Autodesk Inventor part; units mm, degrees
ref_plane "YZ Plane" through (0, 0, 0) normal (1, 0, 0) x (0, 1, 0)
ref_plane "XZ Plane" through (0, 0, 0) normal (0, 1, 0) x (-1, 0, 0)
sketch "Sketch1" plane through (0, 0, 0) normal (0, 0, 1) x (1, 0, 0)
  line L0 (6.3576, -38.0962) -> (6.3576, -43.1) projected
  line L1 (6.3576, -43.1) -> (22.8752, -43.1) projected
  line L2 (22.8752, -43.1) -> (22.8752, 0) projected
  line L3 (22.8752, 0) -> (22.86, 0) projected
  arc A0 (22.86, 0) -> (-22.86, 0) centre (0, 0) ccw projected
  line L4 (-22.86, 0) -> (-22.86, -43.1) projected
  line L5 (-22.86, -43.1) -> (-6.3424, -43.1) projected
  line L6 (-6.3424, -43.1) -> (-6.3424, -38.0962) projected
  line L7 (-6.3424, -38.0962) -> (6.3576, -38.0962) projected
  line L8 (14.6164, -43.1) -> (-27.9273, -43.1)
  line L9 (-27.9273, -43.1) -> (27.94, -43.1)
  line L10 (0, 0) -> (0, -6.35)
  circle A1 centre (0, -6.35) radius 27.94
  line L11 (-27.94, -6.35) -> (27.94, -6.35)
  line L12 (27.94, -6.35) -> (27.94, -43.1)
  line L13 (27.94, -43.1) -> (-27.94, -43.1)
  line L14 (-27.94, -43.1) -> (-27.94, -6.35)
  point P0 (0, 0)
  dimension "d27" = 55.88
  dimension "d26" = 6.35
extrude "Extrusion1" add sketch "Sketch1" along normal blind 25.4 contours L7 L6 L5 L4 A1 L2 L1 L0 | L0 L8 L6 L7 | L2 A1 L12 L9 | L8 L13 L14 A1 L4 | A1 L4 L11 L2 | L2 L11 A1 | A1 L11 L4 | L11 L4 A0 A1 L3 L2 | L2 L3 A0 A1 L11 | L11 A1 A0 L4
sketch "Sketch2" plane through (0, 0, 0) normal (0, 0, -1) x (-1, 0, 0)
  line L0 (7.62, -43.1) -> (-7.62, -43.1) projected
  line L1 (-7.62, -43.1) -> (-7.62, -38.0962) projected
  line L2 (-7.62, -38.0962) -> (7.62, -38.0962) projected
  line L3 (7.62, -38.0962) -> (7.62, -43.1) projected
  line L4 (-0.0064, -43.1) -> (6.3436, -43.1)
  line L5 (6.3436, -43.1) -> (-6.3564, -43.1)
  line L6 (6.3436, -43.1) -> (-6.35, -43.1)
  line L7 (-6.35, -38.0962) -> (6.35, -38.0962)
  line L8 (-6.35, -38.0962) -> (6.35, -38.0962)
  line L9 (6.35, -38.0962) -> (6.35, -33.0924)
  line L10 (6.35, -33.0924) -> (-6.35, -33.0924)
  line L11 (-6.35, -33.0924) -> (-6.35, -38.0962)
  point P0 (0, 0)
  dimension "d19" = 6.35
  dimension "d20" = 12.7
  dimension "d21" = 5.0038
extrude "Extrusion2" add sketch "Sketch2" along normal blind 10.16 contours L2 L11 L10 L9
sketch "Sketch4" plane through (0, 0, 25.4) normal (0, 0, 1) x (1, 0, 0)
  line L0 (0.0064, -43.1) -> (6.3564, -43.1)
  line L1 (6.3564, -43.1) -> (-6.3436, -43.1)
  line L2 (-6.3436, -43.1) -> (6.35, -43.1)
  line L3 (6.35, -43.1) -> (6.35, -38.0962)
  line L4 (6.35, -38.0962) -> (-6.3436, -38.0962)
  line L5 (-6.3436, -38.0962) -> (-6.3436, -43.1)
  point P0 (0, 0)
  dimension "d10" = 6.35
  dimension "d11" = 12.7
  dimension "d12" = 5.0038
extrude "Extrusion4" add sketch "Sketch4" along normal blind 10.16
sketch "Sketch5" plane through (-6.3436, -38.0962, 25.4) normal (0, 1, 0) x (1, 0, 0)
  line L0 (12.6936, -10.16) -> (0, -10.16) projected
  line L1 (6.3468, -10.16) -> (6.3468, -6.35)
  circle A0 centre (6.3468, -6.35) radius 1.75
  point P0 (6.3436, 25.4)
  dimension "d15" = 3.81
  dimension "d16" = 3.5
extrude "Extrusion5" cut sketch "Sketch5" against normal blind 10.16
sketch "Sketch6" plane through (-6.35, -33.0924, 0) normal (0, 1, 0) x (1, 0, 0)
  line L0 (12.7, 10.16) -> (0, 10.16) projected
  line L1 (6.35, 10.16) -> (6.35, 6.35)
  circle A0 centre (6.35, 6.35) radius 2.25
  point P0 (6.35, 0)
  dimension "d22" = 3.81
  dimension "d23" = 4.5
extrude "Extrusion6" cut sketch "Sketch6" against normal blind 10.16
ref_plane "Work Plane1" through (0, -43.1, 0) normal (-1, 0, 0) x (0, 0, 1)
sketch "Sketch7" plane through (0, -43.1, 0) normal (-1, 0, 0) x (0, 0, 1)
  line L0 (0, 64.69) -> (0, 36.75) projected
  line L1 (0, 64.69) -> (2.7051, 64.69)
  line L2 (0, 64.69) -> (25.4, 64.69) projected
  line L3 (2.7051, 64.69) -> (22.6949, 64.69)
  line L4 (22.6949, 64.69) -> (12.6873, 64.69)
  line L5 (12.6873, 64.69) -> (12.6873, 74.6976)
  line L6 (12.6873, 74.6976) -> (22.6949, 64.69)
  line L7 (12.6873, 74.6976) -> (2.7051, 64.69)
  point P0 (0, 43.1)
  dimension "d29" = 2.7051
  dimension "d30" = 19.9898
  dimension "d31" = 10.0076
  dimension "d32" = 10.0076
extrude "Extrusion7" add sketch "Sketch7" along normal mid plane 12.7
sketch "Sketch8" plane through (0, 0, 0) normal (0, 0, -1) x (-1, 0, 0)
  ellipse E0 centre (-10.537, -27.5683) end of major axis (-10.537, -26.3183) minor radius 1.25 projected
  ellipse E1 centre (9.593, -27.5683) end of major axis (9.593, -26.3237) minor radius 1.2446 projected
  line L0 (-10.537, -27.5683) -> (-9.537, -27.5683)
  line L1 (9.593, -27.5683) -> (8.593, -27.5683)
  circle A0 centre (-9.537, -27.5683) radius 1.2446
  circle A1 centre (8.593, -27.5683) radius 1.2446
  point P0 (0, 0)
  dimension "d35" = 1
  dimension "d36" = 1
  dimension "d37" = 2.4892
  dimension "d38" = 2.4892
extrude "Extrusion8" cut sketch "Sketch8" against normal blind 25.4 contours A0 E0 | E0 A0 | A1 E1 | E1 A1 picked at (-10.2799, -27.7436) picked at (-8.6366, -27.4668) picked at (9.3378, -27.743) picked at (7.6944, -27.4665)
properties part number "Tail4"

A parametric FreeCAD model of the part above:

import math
import FreeCAD as App
import Part
import Sketcher

V = App.Vector
Q = App.Units.Quantity


def add_polygon(sketch, points):
    """Adds a closed chain of lines whose ends are joined by coincident constraints."""
    first, n = sketch.GeometryCount, len(points)
    for a, b in zip(points, points[1:] + points[:1]):
        sketch.addGeometry(Part.LineSegment(App.Vector(*a, 0), App.Vector(*b, 0)), False)
    for i in range(n):
        sketch.addConstraint(Sketcher.Constraint("Coincident", first + i, 2, first + (i + 1) % n, 1))

doc = App.newDocument("Part")
body = doc.addObject("PartDesign::Body", "Body")
body.AllowCompound = True

# Sketch on XY plane
sketch1 = body.newObject("Sketcher::SketchObject", "Sketch")
sketch1.AttachmentSupport = (doc.getObject("XY_Plane"), [""])
sketch1.MapMode = "FlatFace"
sketch1.addGeometry([
    Part.LineSegment(V(27.94, -43.1, 0), V(27.94, -6.35, 0)),
    Part.ArcOfCircle(Part.Circle(V(0, -6.35, 0), V(0, 0, 1), 27.94), math.radians(0), math.radians(180)),
    Part.LineSegment(V(-27.94, -6.35, 0), V(-27.94, -43.1, 0)),
    Part.LineSegment(V(-27.94, -43.1, 0), V(27.94, -43.1, 0)),
], False)
sketch1.addConstraint([
    Sketcher.Constraint("Tangent", 0, 2, 1, 1),
    Sketcher.Constraint("Tangent", 1, 2, 2, 1),
    Sketcher.Constraint("Coincident", 2, 2, 3, 1),
    Sketcher.Constraint("Coincident", 3, 2, 0, 1),
    Sketcher.Constraint("Vertical", 0),
    Sketcher.Constraint("Vertical", 2),
    Sketcher.Constraint("Horizontal", 3),
    Sketcher.Constraint("PointOnObject", 1, 3, -2),
    Sketcher.Constraint("Radius", 1, Q("1.1 in")),
    Sketcher.Constraint("DistanceY", 1, 3, -1, 1, Q("0.25 in")),
    Sketcher.Constraint("DistanceY", 0, 1, 0, 2, 36.75),
])
pad1 = body.newObject("PartDesign::Pad", "Pad")
pad1.Profile = sketch1
pad1.Length = Q("1 in")

# Sketch on XY plane
sketch2 = body.newObject("Sketcher::SketchObject", "Sketch001")
sketch2.AttachmentSupport = (doc.getObject("XY_Plane"), [""])
sketch2.MapMode = "FlatFace"
add_polygon(sketch2, [(6.35, -38.0962), (-6.35, -38.0962), (-6.35, -33.0924), (6.35, -33.0924)])  # lines 0-3
sketch2.addConstraint([
    Sketcher.Constraint("Horizontal", 0),
    Sketcher.Constraint("Vertical", 1),
    Sketcher.Constraint("Horizontal", 2),
    Sketcher.Constraint("Vertical", 3),
    Sketcher.Constraint("DistanceX", 0, 2, 0, 1, Q("0.5 in")),
    Sketcher.Constraint("DistanceY", 1, 1, 1, 2, Q("0.197 in")),
    Sketcher.Constraint("DistanceX", 0, 2, -1, 1, Q("0.25 in")),
    Sketcher.Constraint("DistanceY", 0, 2, -1, 1, 38.0962),
])
pad2 = body.newObject("PartDesign::Pad", "Pad001")
pad2.Profile = sketch2
pad2.Length = Q("0.4 in")
pad2.Reversed = True

# Sketch on XY plane
sketch3 = body.newObject("Sketcher::SketchObject", "Sketch002")
sketch3.AttachmentSupport = (doc.getObject("XY_Plane"), [""])
sketch3.MapMode = "FlatFace"
sketch3.AttachmentOffset = App.Placement(V(0, 0, 1 * 25.4), App.Rotation())
add_polygon(sketch3, [(-6.3436, -43.1), (6.35, -43.1), (6.35, -38.0962), (-6.3436, -38.0962)])  # lines 0-3
sketch3.addConstraint([
    Sketcher.Constraint("Horizontal", 0),
    Sketcher.Constraint("Vertical", 1),
    Sketcher.Constraint("Horizontal", 2),
    Sketcher.Constraint("Vertical", 3),
    Sketcher.Constraint("DistanceY", 1, 1, 1, 2, Q("0.197 in")),
    Sketcher.Constraint("DistanceX", -1, 1, 0, 2, Q("0.25 in")),
    Sketcher.Constraint("DistanceX", 0, 1, 0, 2, 12.6936),
    Sketcher.Constraint("DistanceY", 0, 2, -1, 1, 43.1),
])
pad3 = body.newObject("PartDesign::Pad", "Pad002")
pad3.Profile = sketch3
pad3.Length = Q("0.4 in")

# Sketch on XZ plane
sketch4 = body.newObject("Sketcher::SketchObject", "Sketch003")
sketch4.AttachmentSupport = (doc.getObject("XZ_Plane"), [""])
sketch4.MapMode = "FlatFace"
sketch4.AttachmentOffset = App.Placement(V(0, 0, 38.0962), App.Rotation())
sketch4.addGeometry(Part.Circle(V(0.0032, 31.75, 0), V(0, 0, 1), 1.75), False)
sketch4.addConstraint([
    Sketcher.Constraint("Diameter", 0, Q("0.1378 in")),
    Sketcher.Constraint("DistanceY", -1, 1, 0, 3, Q("1.25 in")),
    Sketcher.Constraint("DistanceX", -1, 1, 0, 3, 0.0032),
])
pocket1 = body.newObject("PartDesign::Pocket", "Pocket")
pocket1.Profile = sketch4
pocket1.Length = Q("0.4 in")
pocket1.Reversed = True

# Sketch on XZ plane
sketch5 = body.newObject("Sketcher::SketchObject", "Sketch004")
sketch5.AttachmentSupport = (doc.getObject("XZ_Plane"), [""])
sketch5.MapMode = "FlatFace"
sketch5.AttachmentOffset = App.Placement(V(0, 0, 33.0924), App.Rotation())
sketch5.addGeometry(Part.Circle(V(0, -6.35, 0), V(0, 0, 1), 2.25), False)
sketch5.addConstraint([
    Sketcher.Constraint("PointOnObject", 0, 3, -2),
    Sketcher.Constraint("Diameter", 0, 4.5),
    Sketcher.Constraint("DistanceY", 0, 3, -1, 1, Q("0.25 in")),
])
pocket2 = body.newObject("PartDesign::Pocket", "Pocket001")
pocket2.Profile = sketch5
pocket2.Length = Q("0.4 in")
pocket2.Reversed = True

# Sketch on YZ plane
sketch6 = body.newObject("Sketcher::SketchObject", "Sketch005")
sketch6.AttachmentSupport = (doc.getObject("YZ_Plane"), [""])
sketch6.MapMode = "FlatFace"
add_polygon(sketch6, [(31.5976, 12.6873), (21.59, 2.7051), (21.59, 22.6949)])  # lines 0-2
sketch6.addConstraint([
    Sketcher.Constraint("Vertical", 1),
    Sketcher.Constraint("DistanceY", 1, 1, 1, 2, Q("0.787 in")),
    Sketcher.Constraint("Angle", 2, Q("-45 deg")),
    Sketcher.Constraint("DistanceX", 0, 2, 2, 2, Q("0.394 in")),
    Sketcher.Constraint("DistanceY", -1, 1, 0, 2, Q("0.1065 in")),
    Sketcher.Constraint("DistanceX", -1, 1, 0, 2, Q("0.85 in")),
])
pad4 = body.newObject("PartDesign::Pad", "Pad003")
pad4.Profile = sketch6
pad4.Length = Q("0.5 in")
pad4.Midplane = True

# Sketch on XY plane
sketch7 = body.newObject("Sketcher::SketchObject", "Sketch006")
sketch7.AttachmentSupport = (doc.getObject("XY_Plane"), [""])
sketch7.MapMode = "FlatFace"
sketch7.addGeometry([
    Part.Circle(V(9.537, -27.5683, 0), V(0, 0, 1), 1.2446),
    Part.Circle(V(-8.593, -27.5683, 0), V(0, 0, 1), 1.2446),
], False)
sketch7.addConstraint([
    Sketcher.Constraint("Equal", 0, 1),
    Sketcher.Constraint("Horizontal", 0, 3, 1, 3),
    Sketcher.Constraint("Diameter", 0, Q("0.098 in")),
    Sketcher.Constraint("DistanceX", 1, 3, -1, 1, Q("0.3383 in")),
    Sketcher.Constraint("DistanceX", -1, 1, 0, 3, 9.537),
    Sketcher.Constraint("DistanceY", 0, 3, -1, 1, 27.5683),
])
pocket3 = body.newObject("PartDesign::Pocket", "Pocket002")
pocket3.Profile = sketch7
pocket3.Length = Q("1 in")
pocket3.Reversed = True

doc.recompute()
